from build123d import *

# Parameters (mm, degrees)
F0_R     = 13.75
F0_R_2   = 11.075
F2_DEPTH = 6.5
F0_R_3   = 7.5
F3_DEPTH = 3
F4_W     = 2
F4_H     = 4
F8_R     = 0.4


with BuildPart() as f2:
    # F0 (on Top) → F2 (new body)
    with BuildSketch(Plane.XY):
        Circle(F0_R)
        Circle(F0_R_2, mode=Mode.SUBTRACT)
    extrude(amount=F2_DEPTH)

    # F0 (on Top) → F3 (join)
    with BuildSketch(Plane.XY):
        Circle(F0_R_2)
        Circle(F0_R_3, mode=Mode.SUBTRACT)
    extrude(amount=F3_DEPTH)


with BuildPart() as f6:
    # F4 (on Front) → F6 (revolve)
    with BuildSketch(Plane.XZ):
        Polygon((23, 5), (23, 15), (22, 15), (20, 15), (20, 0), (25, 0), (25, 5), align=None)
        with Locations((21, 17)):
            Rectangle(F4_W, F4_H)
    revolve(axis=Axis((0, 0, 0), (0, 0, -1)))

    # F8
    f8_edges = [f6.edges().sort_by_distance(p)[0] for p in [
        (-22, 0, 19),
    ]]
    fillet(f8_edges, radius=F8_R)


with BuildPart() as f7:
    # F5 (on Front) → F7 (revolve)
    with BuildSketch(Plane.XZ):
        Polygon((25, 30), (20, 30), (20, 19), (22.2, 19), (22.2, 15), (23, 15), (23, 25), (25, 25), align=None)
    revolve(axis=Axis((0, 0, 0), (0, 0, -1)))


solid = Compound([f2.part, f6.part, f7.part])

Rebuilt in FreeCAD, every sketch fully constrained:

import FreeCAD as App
import Part
import Sketcher


def edges_at(feature, points):
    """Names of the edges that pass closest to the given points."""
    edges = feature.Shape.Edges
    near = lambda p: min(range(len(edges)), key=lambda i: edges[i].distToShape(Part.Vertex(*p))[0])
    return sorted({f"Edge{near(p) + 1}" for p in points})


def add_polygon(sketch, points):
    """Adds a closed chain of lines whose ends are joined by coincident constraints."""
    first, n = sketch.GeometryCount, len(points)
    for a, b in zip(points, points[1:] + points[:1]):
        sketch.addGeometry(Part.LineSegment(App.Vector(*a, 0), App.Vector(*b, 0)), False)
    for i in range(n):
        sketch.addConstraint(Sketcher.Constraint("Coincident", first + i, 2, first + (i + 1) % n, 1))

doc = App.newDocument("Part")
body = doc.addObject("PartDesign::Body", "Body")

# Sketch on XY plane
sketch1 = body.newObject("Sketcher::SketchObject", "Sketch")
sketch1.AttachmentSupport = (doc.getObject("XY_Plane"), [""])
sketch1.MapMode = "FlatFace"
sketch1.addGeometry(Part.Circle(App.Vector(0, 0, 0), App.Vector(0, 0, 1), 14), False)
sketch1.addGeometry(Part.Circle(App.Vector(0, 0, 0), App.Vector(0, 0, 1), 11), False)
sketch1.addConstraint(Sketcher.Constraint("Coincident", 0, 3, -1, 1))
sketch1.addConstraint(Sketcher.Constraint("Coincident", 1, 3, -1, 1))
sketch1.addConstraint(Sketcher.Constraint("Diameter", 0, 27.5))
sketch1.addConstraint(Sketcher.Constraint("Diameter", 1, 22.15))
pad1 = body.newObject("PartDesign::Pad", "Pad")
pad1.Profile = sketch1
pad1.Length = 6.5

# Sketch on XY plane
sketch2 = body.newObject("Sketcher::SketchObject", "Sketch001")
sketch2.AttachmentSupport = (doc.getObject("XY_Plane"), [""])
sketch2.MapMode = "FlatFace"
sketch2.addGeometry(Part.Circle(App.Vector(0, 0, 0), App.Vector(0, 0, 1), 11), False)
sketch2.addGeometry(Part.Circle(App.Vector(0, 0, 0), App.Vector(0, 0, 1), 8), False)
sketch2.addConstraint(Sketcher.Constraint("Coincident", 0, 3, -1, 1))
sketch2.addConstraint(Sketcher.Constraint("Coincident", 1, 3, -1, 1))
sketch2.addConstraint(Sketcher.Constraint("Diameter", 1, 15.0))
sketch2.addConstraint(Sketcher.Constraint("Diameter", 0, 22.15))
pad2 = body.newObject("PartDesign::Pad", "Pad001")
pad2.Profile = sketch2
pad2.Length = 3
body2 = doc.addObject("PartDesign::Body", "Body001")

# Sketch on XZ plane
sketch3 = body2.newObject("Sketcher::SketchObject", "Sketch002")
sketch3.AttachmentSupport = (doc.getObject("XZ_Plane001"), [""])
sketch3.MapMode = "FlatFace"
add_polygon(sketch3, [(23, 5), (23, 15), (22, 15), (22, 19), (20, 19), (20, 0), (25, 0), (25, 5)])  # lines 0-7
sketch3.addConstraint(Sketcher.Constraint("Vertical", 0))
sketch3.addConstraint(Sketcher.Constraint("Horizontal", 1))
sketch3.addConstraint(Sketcher.Constraint("Vertical", 2))
sketch3.addConstraint(Sketcher.Constraint("Horizontal", 3))
sketch3.addConstraint(Sketcher.Constraint("Vertical", 4))
sketch3.addConstraint(Sketcher.Constraint("Horizontal", 5))
sketch3.addConstraint(Sketcher.Constraint("Vertical", 6))
sketch3.addConstraint(Sketcher.Constraint("Horizontal", 7))
sketch3.addConstraint(Sketcher.Constraint("PointOnObject", 4, 2, -1))
sketch3.addConstraint(Sketcher.Constraint("Equal", 3, 7))
sketch3.addConstraint(Sketcher.Constraint("Equal", 5, 6))
sketch3.addConstraint(Sketcher.Constraint("DistanceX", 1, 2, 1, 1, 1.0))
sketch3.addConstraint(Sketcher.Constraint("DistanceX", 3, 2, 3, 1, 2.0))
sketch3.addConstraint(Sketcher.Constraint("DistanceY", 0, 1, 0, 2, 10.0))
sketch3.addConstraint(Sketcher.Constraint("DistanceY", 2, 1, 2, 2, 4.0))
sketch3.addConstraint(Sketcher.Constraint("DistanceX", -1, 1, 0, 2, 23.0))
revolution = body2.newObject("PartDesign::Revolution", "Revolution")
revolution.Profile = sketch3
revolution.ReferenceAxis = (sketch3, ["V_Axis"])
revolution.Angle = 360
doc.recompute()

fillet = body2.newObject("PartDesign::Fillet", "Fillet")
fillet.Base = (revolution, edges_at(revolution, [(-22, 0, 19)]))
fillet.Radius = 0.4
body3 = doc.addObject("PartDesign::Body", "Body002")

# Sketch on XZ plane
sketch4 = body3.newObject("Sketcher::SketchObject", "Sketch003")
sketch4.AttachmentSupport = (doc.getObject("XZ_Plane002"), [""])
sketch4.MapMode = "FlatFace"
add_polygon(sketch4, [(25, 30), (20, 30), (20, 19), (22.2, 19), (22.2, 15), (23, 15), (23, 25), (25, 25)])  # lines 0-7
sketch4.addConstraint(Sketcher.Constraint("Horizontal", 0))
sketch4.addConstraint(Sketcher.Constraint("Vertical", 1))
sketch4.addConstraint(Sketcher.Constraint("Horizontal", 2))
sketch4.addConstraint(Sketcher.Constraint("Vertical", 3))
sketch4.addConstraint(Sketcher.Constraint("Horizontal", 4))
sketch4.addConstraint(Sketcher.Constraint("Vertical", 5))
sketch4.addConstraint(Sketcher.Constraint("Horizontal", 6))
sketch4.addConstraint(Sketcher.Constraint("Vertical", 7))
sketch4.addConstraint(Sketcher.Constraint("Equal", 0, 7))
sketch4.addConstraint(Sketcher.Constraint("DistanceX", 0, 2, 0, 1, 5.0))
sketch4.addConstraint(Sketcher.Constraint("DistanceX", 6, 1, 6, 2, 2.0))
sketch4.addConstraint(Sketcher.Constraint("DistanceY", 1, 2, 1, 1, 11.0))
sketch4.addConstraint(Sketcher.Constraint("DistanceY", 3, 2, 3, 1, 4.0))
sketch4.addConstraint(Sketcher.Constraint("DistanceX", 2, 1, 2, 2, 2.2))
sketch4.addConstraint(Sketcher.Constraint("DistanceX", -1, 1, 0, 2, 20.0))
sketch4.addConstraint(Sketcher.Constraint("DistanceY", -1, 1, 0, 2, 30.0))
revolution2 = body3.newObject("PartDesign::Revolution", "Revolution001")
revolution2.Profile = sketch4
revolution2.ReferenceAxis = (sketch4, ["V_Axis"])
revolution2.Angle = 360

doc.recompute()
